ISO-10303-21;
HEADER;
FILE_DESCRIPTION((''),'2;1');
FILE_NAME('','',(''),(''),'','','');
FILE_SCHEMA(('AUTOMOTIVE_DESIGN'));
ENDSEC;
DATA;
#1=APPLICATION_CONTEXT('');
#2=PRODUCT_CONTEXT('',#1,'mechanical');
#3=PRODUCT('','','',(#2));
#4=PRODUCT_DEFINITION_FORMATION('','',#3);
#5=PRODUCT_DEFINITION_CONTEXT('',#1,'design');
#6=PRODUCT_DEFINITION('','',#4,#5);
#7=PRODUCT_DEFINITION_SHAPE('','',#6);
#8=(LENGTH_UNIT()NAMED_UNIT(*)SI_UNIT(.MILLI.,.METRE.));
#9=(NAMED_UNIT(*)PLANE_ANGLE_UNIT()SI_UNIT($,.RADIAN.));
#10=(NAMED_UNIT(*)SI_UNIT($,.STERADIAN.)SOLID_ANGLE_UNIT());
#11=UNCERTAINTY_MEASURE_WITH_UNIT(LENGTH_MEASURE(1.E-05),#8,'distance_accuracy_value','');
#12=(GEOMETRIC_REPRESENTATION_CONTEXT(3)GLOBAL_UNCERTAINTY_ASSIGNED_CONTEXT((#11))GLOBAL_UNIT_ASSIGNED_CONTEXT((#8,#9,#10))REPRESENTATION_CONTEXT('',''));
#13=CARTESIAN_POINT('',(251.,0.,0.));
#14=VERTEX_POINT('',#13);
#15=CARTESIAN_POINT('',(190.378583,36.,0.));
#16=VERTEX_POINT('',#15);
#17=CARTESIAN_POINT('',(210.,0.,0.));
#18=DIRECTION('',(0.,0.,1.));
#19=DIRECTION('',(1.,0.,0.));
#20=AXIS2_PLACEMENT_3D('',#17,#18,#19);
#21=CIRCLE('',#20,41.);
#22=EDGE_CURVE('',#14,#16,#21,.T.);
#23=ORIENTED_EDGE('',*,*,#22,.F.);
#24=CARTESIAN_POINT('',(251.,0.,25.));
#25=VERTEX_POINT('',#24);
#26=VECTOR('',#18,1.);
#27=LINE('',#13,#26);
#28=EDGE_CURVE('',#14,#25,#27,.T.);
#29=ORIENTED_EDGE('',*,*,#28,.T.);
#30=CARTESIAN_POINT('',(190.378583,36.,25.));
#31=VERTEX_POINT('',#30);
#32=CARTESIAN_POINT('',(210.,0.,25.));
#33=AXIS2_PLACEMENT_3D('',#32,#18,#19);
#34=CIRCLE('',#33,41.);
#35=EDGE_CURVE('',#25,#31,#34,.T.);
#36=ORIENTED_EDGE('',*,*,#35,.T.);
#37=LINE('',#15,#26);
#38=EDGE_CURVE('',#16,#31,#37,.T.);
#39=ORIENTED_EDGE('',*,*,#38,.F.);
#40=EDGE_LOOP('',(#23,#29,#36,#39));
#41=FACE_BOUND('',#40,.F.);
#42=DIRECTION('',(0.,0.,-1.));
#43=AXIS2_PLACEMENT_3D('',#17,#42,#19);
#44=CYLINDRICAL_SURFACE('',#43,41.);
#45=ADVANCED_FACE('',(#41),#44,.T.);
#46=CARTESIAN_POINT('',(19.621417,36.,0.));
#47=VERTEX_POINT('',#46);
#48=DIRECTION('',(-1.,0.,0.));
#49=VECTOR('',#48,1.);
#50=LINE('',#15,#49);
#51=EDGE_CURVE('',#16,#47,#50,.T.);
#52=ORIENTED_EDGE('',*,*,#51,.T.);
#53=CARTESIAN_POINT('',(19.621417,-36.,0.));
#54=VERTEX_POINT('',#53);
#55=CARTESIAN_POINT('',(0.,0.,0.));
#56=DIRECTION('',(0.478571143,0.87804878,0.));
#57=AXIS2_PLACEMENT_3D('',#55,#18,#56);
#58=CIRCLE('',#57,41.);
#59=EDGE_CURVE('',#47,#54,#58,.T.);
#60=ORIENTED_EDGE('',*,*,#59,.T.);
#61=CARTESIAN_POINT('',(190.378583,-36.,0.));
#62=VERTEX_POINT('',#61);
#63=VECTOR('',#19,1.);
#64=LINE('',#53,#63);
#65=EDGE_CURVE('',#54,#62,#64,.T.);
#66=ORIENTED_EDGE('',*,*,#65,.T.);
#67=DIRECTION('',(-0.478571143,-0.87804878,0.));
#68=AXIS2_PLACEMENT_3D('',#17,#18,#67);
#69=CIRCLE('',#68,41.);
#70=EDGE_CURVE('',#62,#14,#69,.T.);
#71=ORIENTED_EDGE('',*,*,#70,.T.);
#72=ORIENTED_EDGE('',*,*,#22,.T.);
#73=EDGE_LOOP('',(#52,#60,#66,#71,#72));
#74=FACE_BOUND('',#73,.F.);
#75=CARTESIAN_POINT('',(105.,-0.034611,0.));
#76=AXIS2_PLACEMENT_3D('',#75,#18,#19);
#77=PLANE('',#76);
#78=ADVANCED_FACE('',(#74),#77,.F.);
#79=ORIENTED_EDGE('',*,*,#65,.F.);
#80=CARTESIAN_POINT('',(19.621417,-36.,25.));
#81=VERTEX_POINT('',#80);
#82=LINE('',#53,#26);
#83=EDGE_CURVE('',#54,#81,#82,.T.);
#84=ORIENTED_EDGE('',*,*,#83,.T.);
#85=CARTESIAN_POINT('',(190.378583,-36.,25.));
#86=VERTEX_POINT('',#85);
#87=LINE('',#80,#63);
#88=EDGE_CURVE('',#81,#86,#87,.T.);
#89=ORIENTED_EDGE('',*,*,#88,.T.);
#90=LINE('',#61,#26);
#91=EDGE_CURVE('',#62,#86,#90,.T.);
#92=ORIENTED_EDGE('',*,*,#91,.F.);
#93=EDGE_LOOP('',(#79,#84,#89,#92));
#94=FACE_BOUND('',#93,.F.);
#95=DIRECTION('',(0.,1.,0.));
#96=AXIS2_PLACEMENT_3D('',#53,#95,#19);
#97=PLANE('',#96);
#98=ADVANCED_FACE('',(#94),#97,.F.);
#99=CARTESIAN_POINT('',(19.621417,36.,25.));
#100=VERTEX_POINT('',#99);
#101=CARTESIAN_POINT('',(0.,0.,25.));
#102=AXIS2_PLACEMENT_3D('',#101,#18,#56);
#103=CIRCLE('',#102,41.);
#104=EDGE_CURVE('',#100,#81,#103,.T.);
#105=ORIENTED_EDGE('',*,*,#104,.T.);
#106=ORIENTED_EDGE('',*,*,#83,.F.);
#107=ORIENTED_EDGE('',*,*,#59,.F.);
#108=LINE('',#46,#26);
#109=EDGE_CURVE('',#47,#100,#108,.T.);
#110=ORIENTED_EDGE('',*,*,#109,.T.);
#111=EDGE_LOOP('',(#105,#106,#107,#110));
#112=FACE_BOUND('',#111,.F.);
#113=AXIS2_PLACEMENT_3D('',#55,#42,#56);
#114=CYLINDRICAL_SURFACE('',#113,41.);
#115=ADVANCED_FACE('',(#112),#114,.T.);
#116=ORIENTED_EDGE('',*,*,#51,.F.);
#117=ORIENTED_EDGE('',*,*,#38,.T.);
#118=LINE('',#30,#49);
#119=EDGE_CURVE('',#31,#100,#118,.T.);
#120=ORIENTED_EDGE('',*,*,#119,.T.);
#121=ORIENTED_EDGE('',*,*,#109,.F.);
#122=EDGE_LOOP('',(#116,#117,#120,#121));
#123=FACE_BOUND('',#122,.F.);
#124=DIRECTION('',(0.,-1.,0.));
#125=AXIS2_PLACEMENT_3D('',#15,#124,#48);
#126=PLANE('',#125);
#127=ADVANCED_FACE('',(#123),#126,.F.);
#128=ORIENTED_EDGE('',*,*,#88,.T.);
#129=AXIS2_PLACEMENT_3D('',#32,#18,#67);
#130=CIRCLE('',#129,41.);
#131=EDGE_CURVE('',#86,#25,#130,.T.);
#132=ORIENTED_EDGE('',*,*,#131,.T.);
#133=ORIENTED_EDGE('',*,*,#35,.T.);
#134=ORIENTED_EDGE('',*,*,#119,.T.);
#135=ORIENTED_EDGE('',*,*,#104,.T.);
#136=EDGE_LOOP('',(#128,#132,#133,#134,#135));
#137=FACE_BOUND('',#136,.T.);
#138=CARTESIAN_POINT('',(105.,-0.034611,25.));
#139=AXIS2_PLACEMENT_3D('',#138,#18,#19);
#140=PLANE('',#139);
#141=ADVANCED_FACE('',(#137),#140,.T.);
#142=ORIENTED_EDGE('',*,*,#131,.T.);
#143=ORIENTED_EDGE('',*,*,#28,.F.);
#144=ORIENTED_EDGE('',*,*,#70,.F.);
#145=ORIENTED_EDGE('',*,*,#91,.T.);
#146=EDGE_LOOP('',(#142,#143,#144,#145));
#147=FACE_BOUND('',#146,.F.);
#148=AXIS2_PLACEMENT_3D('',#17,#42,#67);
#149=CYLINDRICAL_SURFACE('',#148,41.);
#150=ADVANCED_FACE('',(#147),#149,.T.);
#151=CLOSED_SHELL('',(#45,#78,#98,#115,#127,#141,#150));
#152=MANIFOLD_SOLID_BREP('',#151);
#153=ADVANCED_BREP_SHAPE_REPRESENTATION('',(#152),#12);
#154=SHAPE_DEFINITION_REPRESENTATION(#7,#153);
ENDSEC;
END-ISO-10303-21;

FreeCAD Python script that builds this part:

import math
import FreeCAD as App
import Part
import Sketcher
Q = App.Units.Quantity

doc = App.newDocument("Part")
body = doc.addObject("PartDesign::Body", "Body")

# Sketch on XY plane
sketch1 = body.newObject("Sketcher::SketchObject", "Sketch")
sketch1.AttachmentSupport = (doc.getObject("XY_Plane"), [""])
sketch1.MapMode = "FlatFace"
sketch1.addGeometry(Part.LineSegment(App.Vector(20, -36, 0), App.Vector(190, -36, 0)), False)
sketch1.addGeometry(Part.ArcOfCircle(Part.Circle(App.Vector(210, 0, 0), App.Vector(0, 0, 1), 41), math.radians(-119), math.radians(0)), False)
sketch1.addGeometry(Part.ArcOfCircle(Part.Circle(App.Vector(210, 0, 0), App.Vector(0, 0, 1), 41), math.radians(0), math.radians(119)), False)
sketch1.addGeometry(Part.LineSegment(App.Vector(190, 36, 0), App.Vector(20, 36, 0)), False)
sketch1.addGeometry(Part.ArcOfCircle(Part.Circle(App.Vector(0, 0, 0), App.Vector(0, 0, 1), 41), math.radians(61), math.radians(299)), False)
sketch1.addConstraint(Sketcher.Constraint("Coincident", 0, 2, 1, 1))
sketch1.addConstraint(Sketcher.Constraint("Tangent", 1, 2, 2, 1))
sketch1.addConstraint(Sketcher.Constraint("Coincident", 2, 2, 3, 1))
sketch1.addConstraint(Sketcher.Constraint("Coincident", 3, 2, 4, 1))
sketch1.addConstraint(Sketcher.Constraint("Coincident", 4, 2, 0, 1))
sketch1.addConstraint(Sketcher.Constraint("Horizontal", 0))
sketch1.addConstraint(Sketcher.Constraint("Horizontal", 3))
sketch1.addConstraint(Sketcher.Constraint("Coincident", 4, 3, -1, 1))
sketch1.addConstraint(Sketcher.Constraint("Equal", 1, 2))
sketch1.addConstraint(Sketcher.Constraint("Equal", 2, 4))
sketch1.addConstraint(Sketcher.Constraint("Symmetric", 0, 2, 2, 2, -1))
sketch1.addConstraint(Sketcher.Constraint("PointOnObject", 1, 2, -1))
sketch1.addConstraint(Sketcher.Constraint("Radius", 1, Q("41 mm")))
sketch1.addConstraint(Sketcher.Constraint("DistanceX", -1, 1, 1, 3, Q("210 mm")))
sketch1.addConstraint(Sketcher.Constraint("DistanceY", 0, 2, -1, 1, Q("36 mm")))
pad1 = body.newObject("PartDesign::Pad", "Pad")
pad1.Profile = sketch1
pad1.Length = 25

doc.recompute()
